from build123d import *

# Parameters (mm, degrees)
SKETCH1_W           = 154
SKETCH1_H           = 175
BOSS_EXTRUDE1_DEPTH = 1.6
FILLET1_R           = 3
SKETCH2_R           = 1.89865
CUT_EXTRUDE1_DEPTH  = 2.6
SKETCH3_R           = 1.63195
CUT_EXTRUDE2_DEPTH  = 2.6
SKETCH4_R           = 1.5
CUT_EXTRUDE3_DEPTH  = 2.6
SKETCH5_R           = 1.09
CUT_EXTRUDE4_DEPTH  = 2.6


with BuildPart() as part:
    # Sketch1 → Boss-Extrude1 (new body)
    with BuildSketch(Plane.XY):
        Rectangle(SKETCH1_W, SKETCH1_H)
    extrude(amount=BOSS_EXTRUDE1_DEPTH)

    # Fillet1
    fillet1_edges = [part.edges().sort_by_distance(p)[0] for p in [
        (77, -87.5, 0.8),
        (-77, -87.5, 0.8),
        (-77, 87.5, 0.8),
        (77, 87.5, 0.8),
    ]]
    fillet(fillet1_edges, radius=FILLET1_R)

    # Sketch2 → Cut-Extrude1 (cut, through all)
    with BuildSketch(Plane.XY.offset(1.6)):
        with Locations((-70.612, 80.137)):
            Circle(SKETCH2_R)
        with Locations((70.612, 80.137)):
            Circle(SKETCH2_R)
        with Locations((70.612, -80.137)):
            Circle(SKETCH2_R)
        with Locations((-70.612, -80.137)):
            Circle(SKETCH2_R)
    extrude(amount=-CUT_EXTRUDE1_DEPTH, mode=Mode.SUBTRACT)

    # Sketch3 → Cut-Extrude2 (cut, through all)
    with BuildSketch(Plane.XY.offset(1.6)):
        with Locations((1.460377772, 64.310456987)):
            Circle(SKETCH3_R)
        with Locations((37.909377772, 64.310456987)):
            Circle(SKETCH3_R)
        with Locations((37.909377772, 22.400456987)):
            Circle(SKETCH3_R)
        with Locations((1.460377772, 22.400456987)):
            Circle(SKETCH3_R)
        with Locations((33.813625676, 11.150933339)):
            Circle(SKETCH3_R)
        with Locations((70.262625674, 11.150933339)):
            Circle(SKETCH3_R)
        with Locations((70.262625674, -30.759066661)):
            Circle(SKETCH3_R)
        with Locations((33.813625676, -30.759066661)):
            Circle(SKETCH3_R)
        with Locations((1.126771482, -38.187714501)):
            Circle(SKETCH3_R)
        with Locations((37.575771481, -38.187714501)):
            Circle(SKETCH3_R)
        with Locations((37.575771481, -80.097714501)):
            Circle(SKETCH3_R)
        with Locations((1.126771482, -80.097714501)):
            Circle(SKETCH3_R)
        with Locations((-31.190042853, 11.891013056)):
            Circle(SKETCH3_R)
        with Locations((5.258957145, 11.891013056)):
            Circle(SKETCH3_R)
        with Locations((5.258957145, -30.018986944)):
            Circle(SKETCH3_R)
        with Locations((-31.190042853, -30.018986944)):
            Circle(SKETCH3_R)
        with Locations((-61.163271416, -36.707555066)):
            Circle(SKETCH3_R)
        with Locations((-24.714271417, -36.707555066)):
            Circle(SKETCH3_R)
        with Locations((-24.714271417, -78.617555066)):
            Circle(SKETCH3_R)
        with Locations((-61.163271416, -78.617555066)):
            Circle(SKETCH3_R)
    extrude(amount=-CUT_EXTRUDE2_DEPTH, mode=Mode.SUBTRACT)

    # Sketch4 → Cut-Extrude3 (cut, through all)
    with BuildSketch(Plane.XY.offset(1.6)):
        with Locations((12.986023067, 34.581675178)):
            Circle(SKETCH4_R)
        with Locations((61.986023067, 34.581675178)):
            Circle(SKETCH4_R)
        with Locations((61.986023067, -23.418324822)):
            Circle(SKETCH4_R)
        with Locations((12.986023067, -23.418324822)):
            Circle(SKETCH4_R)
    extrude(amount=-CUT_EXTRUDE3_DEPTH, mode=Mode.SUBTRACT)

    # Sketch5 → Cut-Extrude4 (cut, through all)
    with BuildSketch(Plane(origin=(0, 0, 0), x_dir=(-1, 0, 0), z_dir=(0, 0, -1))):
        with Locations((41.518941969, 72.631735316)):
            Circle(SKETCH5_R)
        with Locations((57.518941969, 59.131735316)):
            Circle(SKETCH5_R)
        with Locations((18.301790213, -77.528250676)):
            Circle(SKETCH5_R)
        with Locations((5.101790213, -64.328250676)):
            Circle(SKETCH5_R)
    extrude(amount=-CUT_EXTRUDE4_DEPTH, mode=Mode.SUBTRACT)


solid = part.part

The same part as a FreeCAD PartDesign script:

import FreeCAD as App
import Part
import Sketcher
from FreeCAD import Vector
Q = App.Units.Quantity


def edges_at(feature, points):
    """Names of the edges that pass closest to the given points."""
    edges = feature.Shape.Edges
    near = lambda p: min(range(len(edges)), key=lambda i: edges[i].distToShape(Part.Vertex(*p))[0])
    return sorted({f"Edge{near(p) + 1}" for p in points})

doc = App.newDocument("Part")
params = doc.addObject("Spreadsheet::Sheet", "Params")
for row, (alias, value) in enumerate([
    ("sketch1_width", "154 mm"),
    ("sketch1_height", "175 mm"),
    ("pad1_length", "1.6 mm"),
    ("fillet_radius", "3 mm"),
    ("sketch4_diameter", "3 mm"),
    ("sketch5_diameter", "2.18 mm"),
], start=1):
    params.set(f"A{row}", alias)
    params.set(f"B{row}", "=" + value)
    params.setAlias(f"B{row}", alias)

body = doc.addObject("PartDesign::Body", "Body")

sketch1 = body.newObject("Sketcher::SketchObject", "Sketch")
sketch1.AttachmentSupport = (doc.getObject("XY_Plane"), [""])
sketch1.MapMode = "FlatFace"
sketch1.addGeometry([
    Part.LineSegment(Vector(-77, 88, 0), Vector(-77, -88, 0)),
    Part.LineSegment(Vector(-77, -88, 0), Vector(77, -88, 0)),
    Part.LineSegment(Vector(77, -88, 0), Vector(77, 88, 0)),
    Part.LineSegment(Vector(77, 88, 0), Vector(-77, 88, 0)),
], False)
sketch1.addConstraint([
    Sketcher.Constraint("Coincident", 0, 2, 1, 1),
    Sketcher.Constraint("Coincident", 1, 2, 2, 1),
    Sketcher.Constraint("Coincident", 2, 2, 3, 1),
    Sketcher.Constraint("Coincident", 3, 2, 0, 1),
    Sketcher.Constraint("Vertical", 0),
    Sketcher.Constraint("Horizontal", 1),
    Sketcher.Constraint("Vertical", 2),
    Sketcher.Constraint("Horizontal", 3),
    Sketcher.Constraint("Symmetric", 0, 2, 2, 2, -1, 1),
    Sketcher.Constraint("DistanceX", 1, 1, 1, 2, Q("154 mm")),
    Sketcher.Constraint("DistanceY", 0, 2, 0, 1, Q("175 mm")),
])
sketch1.setExpression("Constraints[9]", "Params.sketch1_width")
sketch1.setExpression("Constraints[10]", "Params.sketch1_height")
pad1 = body.newObject("PartDesign::Pad", "Pad")
pad1.Profile = sketch1
pad1.setExpression("Length", "Params.pad1_length")
doc.recompute()

fillet = body.newObject("PartDesign::Fillet", "Fillet")
fillet.Base = (pad1, edges_at(pad1, [
    (77, -87.5, 0.8),
    (-77, -87.5, 0.8),
    (-77, 87.5, 0.8),
    (77, 87.5, 0.8),
]))
fillet.setExpression("Radius", "Params.fillet_radius")

sketch2 = body.newObject("Sketcher::SketchObject", "Sketch001")
sketch2.AttachmentSupport = (doc.getObject("XY_Plane"), [""])
sketch2.MapMode = "FlatFace"
sketch2.AttachmentOffset = App.Placement(Vector(0, 0, 1.6), App.Rotation())
sketch2.addGeometry([
    Part.Circle(Vector(-70.6, 80.1, 0), Vector(0, 0, 1), 1.9),
    Part.Circle(Vector(70.6, 80.1, 0), Vector(0, 0, 1), 1.9),
    Part.Circle(Vector(70.6, -80.1, 0), Vector(0, 0, 1), 1.9),
    Part.Circle(Vector(-70.6, -80.1, 0), Vector(0, 0, 1), 1.9),
], False)
sketch2.addConstraint([
    Sketcher.Constraint("Equal", 0, 1),
    Sketcher.Constraint("Equal", 1, 2),
    Sketcher.Constraint("Equal", 2, 3),
    Sketcher.Constraint("Symmetric", 0, 3, 2, 3, -1, 1),
    Sketcher.Constraint("Symmetric", 1, 3, 3, 3, -1, 1),
    Sketcher.Constraint("Symmetric", 0, 3, 1, 3, -2),
    Sketcher.Constraint("Diameter", 0, Q("3.7973 mm")),
    Sketcher.Constraint("DistanceX", 0, 3, -1, 1, Q("70.612 mm")),
    Sketcher.Constraint("DistanceY", -1, 1, 0, 3, Q("80.137 mm")),
])
pocket1 = body.newObject("PartDesign::Pocket", "Pocket")
pocket1.Profile = sketch2
pocket1.Type = "ThroughAll"

sketch3 = body.newObject("Sketcher::SketchObject", "Sketch002")
sketch3.AttachmentSupport = (doc.getObject("XY_Plane"), [""])
sketch3.MapMode = "FlatFace"
sketch3.AttachmentOffset = App.Placement(Vector(0, 0, 1.6), App.Rotation())
sketch3.addGeometry([
    Part.Circle(Vector(1.5, 64.3, 0), Vector(0, 0, 1), 1.6),
    Part.Circle(Vector(37.9, 64.3, 0), Vector(0, 0, 1), 1.6),
    Part.Circle(Vector(37.9, 22.4, 0), Vector(0, 0, 1), 1.6),
    Part.Circle(Vector(1.5, 22.4, 0), Vector(0, 0, 1), 1.6),
    Part.Circle(Vector(33.8, 11.2, 0), Vector(0, 0, 1), 1.6),
    Part.Circle(Vector(70.3, 11.2, 0), Vector(0, 0, 1), 1.6),
    Part.Circle(Vector(70.3, -30.8, 0), Vector(0, 0, 1), 1.6),
    Part.Circle(Vector(33.8, -30.8, 0), Vector(0, 0, 1), 1.6),
    Part.Circle(Vector(1.1, -38.2, 0), Vector(0, 0, 1), 1.6),
    Part.Circle(Vector(37.6, -38.2, 0), Vector(0, 0, 1), 1.6),
    Part.Circle(Vector(37.6, -80.1, 0), Vector(0, 0, 1), 1.6),
    Part.Circle(Vector(1.1, -80.1, 0), Vector(0, 0, 1), 1.6),
    Part.Circle(Vector(-31.2, 11.9, 0), Vector(0, 0, 1), 1.6),
    Part.Circle(Vector(5.3, 11.9, 0), Vector(0, 0, 1), 1.6),
    Part.Circle(Vector(5.3, -30, 0), Vector(0, 0, 1), 1.6),
    Part.Circle(Vector(-31.2, -30, 0), Vector(0, 0, 1), 1.6),
    Part.Circle(Vector(-61.2, -36.7, 0), Vector(0, 0, 1), 1.6),
    Part.Circle(Vector(-24.7, -36.7, 0), Vector(0, 0, 1), 1.6),
    Part.Circle(Vector(-24.7, -78.6, 0), Vector(0, 0, 1), 1.6),
    Part.Circle(Vector(-61.2, -78.6, 0), Vector(0, 0, 1), 1.6),
], False)
sketch3.addConstraint([
    Sketcher.Constraint("Equal", 0, 1),
    Sketcher.Constraint("Equal", 1, 2),
    Sketcher.Constraint("Equal", 2, 3),
    Sketcher.Constraint("Equal", 3, 4),
    Sketcher.Constraint("Equal", 4, 5),
    Sketcher.Constraint("Equal", 5, 6),
    Sketcher.Constraint("Equal", 6, 7),
    Sketcher.Constraint("Equal", 7, 8),
    Sketcher.Constraint("Equal", 8, 9),
    Sketcher.Constraint("Equal", 9, 10),
    Sketcher.Constraint("Equal", 10, 11),
    Sketcher.Constraint("Equal", 11, 12),
    Sketcher.Constraint("Equal", 12, 13),
    Sketcher.Constraint("Equal", 13, 14),
    Sketcher.Constraint("Equal", 14, 15),
    Sketcher.Constraint("Equal", 15, 16),
    Sketcher.Constraint("Equal", 16, 17),
    Sketcher.Constraint("Equal", 17, 18),
    Sketcher.Constraint("Equal", 18, 19),
    Sketcher.Constraint("Horizontal", 0, 3, 1, 3),
    Sketcher.Constraint("Horizontal", 2, 3, 3, 3),
    Sketcher.Constraint("Horizontal", 4, 3, 5, 3),
    Sketcher.Constraint("Horizontal", 6, 3, 7, 3),
    Sketcher.Constraint("Horizontal", 8, 3, 9, 3),
    Sketcher.Constraint("Horizontal", 10, 3, 11, 3),
    Sketcher.Constraint("Horizontal", 12, 3, 13, 3),
    Sketcher.Constraint("Horizontal", 14, 3, 15, 3),
    Sketcher.Constraint("Horizontal", 16, 3, 17, 3),
    Sketcher.Constraint("Horizontal", 18, 3, 19, 3),
    Sketcher.Constraint("Vertical", 1, 3, 2, 3),
    Sketcher.Constraint("Vertical", 0, 3, 3, 3),
    Sketcher.Constraint("Vertical", 5, 3, 6, 3),
    Sketcher.Constraint("Vertical", 4, 3, 7, 3),
    Sketcher.Constraint("Vertical", 9, 3, 10, 3),
    Sketcher.Constraint("Vertical", 8, 3, 11, 3),
    Sketcher.Constraint("Vertical", 13, 3, 14, 3),
    Sketcher.Constraint("Vertical", 12, 3, 15, 3),
    Sketcher.Constraint("Vertical", 17, 3, 18, 3),
    Sketcher.Constraint("Vertical", 16, 3, 19, 3),
    Sketcher.Constraint("Diameter", 0, Q("3.2639 mm")),
    Sketcher.Constraint("DistanceY", 2, 3, 1, 3, Q("41.91 mm")),
    Sketcher.Constraint("DistanceY", 6, 3, 5, 3, Q("41.91 mm")),
    Sketcher.Constraint("DistanceY", 10, 3, 9, 3, Q("41.91 mm")),
    Sketcher.Constraint("DistanceY", 14, 3, 13, 3, Q("41.91 mm")),
    Sketcher.Constraint("DistanceY", 18, 3, 17, 3, Q("41.91 mm")),
    Sketcher.Constraint("DistanceX", 0, 3, 1, 3, Q("36.449 mm")),
    Sketcher.Constraint("DistanceX", 4, 3, 5, 3, Q("36.449 mm")),
    Sketcher.Constraint("DistanceX", 8, 3, 9, 3, Q("36.449 mm")),
    Sketcher.Constraint("DistanceX", 12, 3, 13, 3, Q("36.449 mm")),
    Sketcher.Constraint("DistanceX", 16, 3, 17, 3, Q("36.449 mm")),
    Sketcher.Constraint("DistanceX", -1, 1, 8, 3, Q("1.126771 mm")),
    Sketcher.Constraint("DistanceX", 16, 3, -1, 1, Q("61.163271 mm")),
    Sketcher.Constraint("DistanceY", 8, 3, 3, 3, Q("60.588171 mm")),
    Sketcher.Constraint("DistanceX", 12, 3, 3, 3, Q("32.650421 mm")),
    Sketcher.Constraint("DistanceX", 12, 3, 4, 3, Q("65.003669 mm")),
    Sketcher.Constraint("DistanceY", 4, 3, 12, 3, Q("0.74008 mm")),
    Sketcher.Constraint("DistanceX", 16, 3, 15, 3, Q("29.973229 mm")),
    Sketcher.Constraint("DistanceY", 16, 3, 15, 3, Q("6.688568 mm")),
    Sketcher.Constraint("DistanceY", 8, 3, 16, 3, Q("1.480159 mm")),
    Sketcher.Constraint("DistanceY", -1, 1, 0, 3, Q("64.310457 mm")),
])
pocket2 = body.newObject("PartDesign::Pocket", "Pocket001")
pocket2.Profile = sketch3
pocket2.Type = "ThroughAll"

sketch4 = body.newObject("Sketcher::SketchObject", "Sketch003")
sketch4.AttachmentSupport = (doc.getObject("XY_Plane"), [""])
sketch4.MapMode = "FlatFace"
sketch4.AttachmentOffset = App.Placement(Vector(0, 0, 1.6), App.Rotation())
sketch4.addGeometry([
    Part.Circle(Vector(13, 34.6, 0), Vector(0, 0, 1), 1.5),
    Part.Circle(Vector(62, 34.6, 0), Vector(0, 0, 1), 1.5),
    Part.Circle(Vector(62, -23.4, 0), Vector(0, 0, 1), 1.5),
    Part.Circle(Vector(13, -23.4, 0), Vector(0, 0, 1), 1.5),
], False)
sketch4.addConstraint([
    Sketcher.Constraint("Equal", 0, 1),
    Sketcher.Constraint("Equal", 1, 2),
    Sketcher.Constraint("Equal", 2, 3),
    Sketcher.Constraint("Horizontal", 0, 3, 1, 3),
    Sketcher.Constraint("Horizontal", 2, 3, 3, 3),
    Sketcher.Constraint("Vertical", 1, 3, 2, 3),
    Sketcher.Constraint("Vertical", 0, 3, 3, 3),
    Sketcher.Constraint("Diameter", 0, Q("3 mm")),
    Sketcher.Constraint("DistanceX", 0, 3, 1, 3, Q("49 mm")),
    Sketcher.Constraint("DistanceY", 2, 3, 1, 3, Q("58 mm")),
    Sketcher.Constraint("DistanceX", -1, 1, 0, 3, Q("12.986023 mm")),
    Sketcher.Constraint("DistanceY", -1, 1, 0, 3, Q("34.581675 mm")),
])
sketch4.setExpression("Constraints[7]", "Params.sketch4_diameter")
pocket3 = body.newObject("PartDesign::Pocket", "Pocket002")
pocket3.Profile = sketch4
pocket3.Type = "ThroughAll"

sketch5 = body.newObject("Sketcher::SketchObject", "Sketch004")
sketch5.AttachmentSupport = (doc.getObject("XY_Plane"), [""])
sketch5.MapMode = "FlatFace"
sketch5.addGeometry([
    Part.Circle(Vector(-41.5, 72.6, 0), Vector(0, 0, 1), 1.1),
    Part.Circle(Vector(-57.5, 59.1, 0), Vector(0, 0, 1), 1.1),
    Part.Circle(Vector(-18.3, -77.5, 0), Vector(0, 0, 1), 1.1),
    Part.Circle(Vector(-5.1, -64.3, 0), Vector(0, 0, 1), 1.1),
], False)
sketch5.addConstraint([
    Sketcher.Constraint("Equal", 0, 1),
    Sketcher.Constraint("Equal", 1, 2),
    Sketcher.Constraint("Equal", 2, 3),
    Sketcher.Constraint("Diameter", 0, Q("2.18 mm")),
    Sketcher.Constraint("DistanceX", 1, 3, 0, 3, Q("16 mm")),
    Sketcher.Constraint("DistanceY", 1, 3, 0, 3, Q("13.5 mm")),
    Sketcher.Constraint("DistanceX", 2, 3, 3, 3, Q("13.2 mm")),
    Sketcher.Constraint("DistanceY", 2, 3, 3, 3, Q("13.2 mm")),
    Sketcher.Constraint("DistanceX", 0, 3, -1, 1, Q("41.518942 mm")),
    Sketcher.Constraint("DistanceX", 2, 3, -1, 1, Q("18.30179 mm")),
    Sketcher.Constraint("DistanceY", 2, 3, -1, 1, Q("77.528251 mm")),
    Sketcher.Constraint("DistanceY", -1, 1, 0, 3, Q("72.631735 mm")),
])
sketch5.setExpression("Constraints[3]", "Params.sketch5_diameter")
pocket4 = body.newObject("PartDesign::Pocket", "Pocket003")
pocket4.Profile = sketch5
pocket4.Type = "ThroughAll"
pocket4.Reversed = True

doc.recompute()
